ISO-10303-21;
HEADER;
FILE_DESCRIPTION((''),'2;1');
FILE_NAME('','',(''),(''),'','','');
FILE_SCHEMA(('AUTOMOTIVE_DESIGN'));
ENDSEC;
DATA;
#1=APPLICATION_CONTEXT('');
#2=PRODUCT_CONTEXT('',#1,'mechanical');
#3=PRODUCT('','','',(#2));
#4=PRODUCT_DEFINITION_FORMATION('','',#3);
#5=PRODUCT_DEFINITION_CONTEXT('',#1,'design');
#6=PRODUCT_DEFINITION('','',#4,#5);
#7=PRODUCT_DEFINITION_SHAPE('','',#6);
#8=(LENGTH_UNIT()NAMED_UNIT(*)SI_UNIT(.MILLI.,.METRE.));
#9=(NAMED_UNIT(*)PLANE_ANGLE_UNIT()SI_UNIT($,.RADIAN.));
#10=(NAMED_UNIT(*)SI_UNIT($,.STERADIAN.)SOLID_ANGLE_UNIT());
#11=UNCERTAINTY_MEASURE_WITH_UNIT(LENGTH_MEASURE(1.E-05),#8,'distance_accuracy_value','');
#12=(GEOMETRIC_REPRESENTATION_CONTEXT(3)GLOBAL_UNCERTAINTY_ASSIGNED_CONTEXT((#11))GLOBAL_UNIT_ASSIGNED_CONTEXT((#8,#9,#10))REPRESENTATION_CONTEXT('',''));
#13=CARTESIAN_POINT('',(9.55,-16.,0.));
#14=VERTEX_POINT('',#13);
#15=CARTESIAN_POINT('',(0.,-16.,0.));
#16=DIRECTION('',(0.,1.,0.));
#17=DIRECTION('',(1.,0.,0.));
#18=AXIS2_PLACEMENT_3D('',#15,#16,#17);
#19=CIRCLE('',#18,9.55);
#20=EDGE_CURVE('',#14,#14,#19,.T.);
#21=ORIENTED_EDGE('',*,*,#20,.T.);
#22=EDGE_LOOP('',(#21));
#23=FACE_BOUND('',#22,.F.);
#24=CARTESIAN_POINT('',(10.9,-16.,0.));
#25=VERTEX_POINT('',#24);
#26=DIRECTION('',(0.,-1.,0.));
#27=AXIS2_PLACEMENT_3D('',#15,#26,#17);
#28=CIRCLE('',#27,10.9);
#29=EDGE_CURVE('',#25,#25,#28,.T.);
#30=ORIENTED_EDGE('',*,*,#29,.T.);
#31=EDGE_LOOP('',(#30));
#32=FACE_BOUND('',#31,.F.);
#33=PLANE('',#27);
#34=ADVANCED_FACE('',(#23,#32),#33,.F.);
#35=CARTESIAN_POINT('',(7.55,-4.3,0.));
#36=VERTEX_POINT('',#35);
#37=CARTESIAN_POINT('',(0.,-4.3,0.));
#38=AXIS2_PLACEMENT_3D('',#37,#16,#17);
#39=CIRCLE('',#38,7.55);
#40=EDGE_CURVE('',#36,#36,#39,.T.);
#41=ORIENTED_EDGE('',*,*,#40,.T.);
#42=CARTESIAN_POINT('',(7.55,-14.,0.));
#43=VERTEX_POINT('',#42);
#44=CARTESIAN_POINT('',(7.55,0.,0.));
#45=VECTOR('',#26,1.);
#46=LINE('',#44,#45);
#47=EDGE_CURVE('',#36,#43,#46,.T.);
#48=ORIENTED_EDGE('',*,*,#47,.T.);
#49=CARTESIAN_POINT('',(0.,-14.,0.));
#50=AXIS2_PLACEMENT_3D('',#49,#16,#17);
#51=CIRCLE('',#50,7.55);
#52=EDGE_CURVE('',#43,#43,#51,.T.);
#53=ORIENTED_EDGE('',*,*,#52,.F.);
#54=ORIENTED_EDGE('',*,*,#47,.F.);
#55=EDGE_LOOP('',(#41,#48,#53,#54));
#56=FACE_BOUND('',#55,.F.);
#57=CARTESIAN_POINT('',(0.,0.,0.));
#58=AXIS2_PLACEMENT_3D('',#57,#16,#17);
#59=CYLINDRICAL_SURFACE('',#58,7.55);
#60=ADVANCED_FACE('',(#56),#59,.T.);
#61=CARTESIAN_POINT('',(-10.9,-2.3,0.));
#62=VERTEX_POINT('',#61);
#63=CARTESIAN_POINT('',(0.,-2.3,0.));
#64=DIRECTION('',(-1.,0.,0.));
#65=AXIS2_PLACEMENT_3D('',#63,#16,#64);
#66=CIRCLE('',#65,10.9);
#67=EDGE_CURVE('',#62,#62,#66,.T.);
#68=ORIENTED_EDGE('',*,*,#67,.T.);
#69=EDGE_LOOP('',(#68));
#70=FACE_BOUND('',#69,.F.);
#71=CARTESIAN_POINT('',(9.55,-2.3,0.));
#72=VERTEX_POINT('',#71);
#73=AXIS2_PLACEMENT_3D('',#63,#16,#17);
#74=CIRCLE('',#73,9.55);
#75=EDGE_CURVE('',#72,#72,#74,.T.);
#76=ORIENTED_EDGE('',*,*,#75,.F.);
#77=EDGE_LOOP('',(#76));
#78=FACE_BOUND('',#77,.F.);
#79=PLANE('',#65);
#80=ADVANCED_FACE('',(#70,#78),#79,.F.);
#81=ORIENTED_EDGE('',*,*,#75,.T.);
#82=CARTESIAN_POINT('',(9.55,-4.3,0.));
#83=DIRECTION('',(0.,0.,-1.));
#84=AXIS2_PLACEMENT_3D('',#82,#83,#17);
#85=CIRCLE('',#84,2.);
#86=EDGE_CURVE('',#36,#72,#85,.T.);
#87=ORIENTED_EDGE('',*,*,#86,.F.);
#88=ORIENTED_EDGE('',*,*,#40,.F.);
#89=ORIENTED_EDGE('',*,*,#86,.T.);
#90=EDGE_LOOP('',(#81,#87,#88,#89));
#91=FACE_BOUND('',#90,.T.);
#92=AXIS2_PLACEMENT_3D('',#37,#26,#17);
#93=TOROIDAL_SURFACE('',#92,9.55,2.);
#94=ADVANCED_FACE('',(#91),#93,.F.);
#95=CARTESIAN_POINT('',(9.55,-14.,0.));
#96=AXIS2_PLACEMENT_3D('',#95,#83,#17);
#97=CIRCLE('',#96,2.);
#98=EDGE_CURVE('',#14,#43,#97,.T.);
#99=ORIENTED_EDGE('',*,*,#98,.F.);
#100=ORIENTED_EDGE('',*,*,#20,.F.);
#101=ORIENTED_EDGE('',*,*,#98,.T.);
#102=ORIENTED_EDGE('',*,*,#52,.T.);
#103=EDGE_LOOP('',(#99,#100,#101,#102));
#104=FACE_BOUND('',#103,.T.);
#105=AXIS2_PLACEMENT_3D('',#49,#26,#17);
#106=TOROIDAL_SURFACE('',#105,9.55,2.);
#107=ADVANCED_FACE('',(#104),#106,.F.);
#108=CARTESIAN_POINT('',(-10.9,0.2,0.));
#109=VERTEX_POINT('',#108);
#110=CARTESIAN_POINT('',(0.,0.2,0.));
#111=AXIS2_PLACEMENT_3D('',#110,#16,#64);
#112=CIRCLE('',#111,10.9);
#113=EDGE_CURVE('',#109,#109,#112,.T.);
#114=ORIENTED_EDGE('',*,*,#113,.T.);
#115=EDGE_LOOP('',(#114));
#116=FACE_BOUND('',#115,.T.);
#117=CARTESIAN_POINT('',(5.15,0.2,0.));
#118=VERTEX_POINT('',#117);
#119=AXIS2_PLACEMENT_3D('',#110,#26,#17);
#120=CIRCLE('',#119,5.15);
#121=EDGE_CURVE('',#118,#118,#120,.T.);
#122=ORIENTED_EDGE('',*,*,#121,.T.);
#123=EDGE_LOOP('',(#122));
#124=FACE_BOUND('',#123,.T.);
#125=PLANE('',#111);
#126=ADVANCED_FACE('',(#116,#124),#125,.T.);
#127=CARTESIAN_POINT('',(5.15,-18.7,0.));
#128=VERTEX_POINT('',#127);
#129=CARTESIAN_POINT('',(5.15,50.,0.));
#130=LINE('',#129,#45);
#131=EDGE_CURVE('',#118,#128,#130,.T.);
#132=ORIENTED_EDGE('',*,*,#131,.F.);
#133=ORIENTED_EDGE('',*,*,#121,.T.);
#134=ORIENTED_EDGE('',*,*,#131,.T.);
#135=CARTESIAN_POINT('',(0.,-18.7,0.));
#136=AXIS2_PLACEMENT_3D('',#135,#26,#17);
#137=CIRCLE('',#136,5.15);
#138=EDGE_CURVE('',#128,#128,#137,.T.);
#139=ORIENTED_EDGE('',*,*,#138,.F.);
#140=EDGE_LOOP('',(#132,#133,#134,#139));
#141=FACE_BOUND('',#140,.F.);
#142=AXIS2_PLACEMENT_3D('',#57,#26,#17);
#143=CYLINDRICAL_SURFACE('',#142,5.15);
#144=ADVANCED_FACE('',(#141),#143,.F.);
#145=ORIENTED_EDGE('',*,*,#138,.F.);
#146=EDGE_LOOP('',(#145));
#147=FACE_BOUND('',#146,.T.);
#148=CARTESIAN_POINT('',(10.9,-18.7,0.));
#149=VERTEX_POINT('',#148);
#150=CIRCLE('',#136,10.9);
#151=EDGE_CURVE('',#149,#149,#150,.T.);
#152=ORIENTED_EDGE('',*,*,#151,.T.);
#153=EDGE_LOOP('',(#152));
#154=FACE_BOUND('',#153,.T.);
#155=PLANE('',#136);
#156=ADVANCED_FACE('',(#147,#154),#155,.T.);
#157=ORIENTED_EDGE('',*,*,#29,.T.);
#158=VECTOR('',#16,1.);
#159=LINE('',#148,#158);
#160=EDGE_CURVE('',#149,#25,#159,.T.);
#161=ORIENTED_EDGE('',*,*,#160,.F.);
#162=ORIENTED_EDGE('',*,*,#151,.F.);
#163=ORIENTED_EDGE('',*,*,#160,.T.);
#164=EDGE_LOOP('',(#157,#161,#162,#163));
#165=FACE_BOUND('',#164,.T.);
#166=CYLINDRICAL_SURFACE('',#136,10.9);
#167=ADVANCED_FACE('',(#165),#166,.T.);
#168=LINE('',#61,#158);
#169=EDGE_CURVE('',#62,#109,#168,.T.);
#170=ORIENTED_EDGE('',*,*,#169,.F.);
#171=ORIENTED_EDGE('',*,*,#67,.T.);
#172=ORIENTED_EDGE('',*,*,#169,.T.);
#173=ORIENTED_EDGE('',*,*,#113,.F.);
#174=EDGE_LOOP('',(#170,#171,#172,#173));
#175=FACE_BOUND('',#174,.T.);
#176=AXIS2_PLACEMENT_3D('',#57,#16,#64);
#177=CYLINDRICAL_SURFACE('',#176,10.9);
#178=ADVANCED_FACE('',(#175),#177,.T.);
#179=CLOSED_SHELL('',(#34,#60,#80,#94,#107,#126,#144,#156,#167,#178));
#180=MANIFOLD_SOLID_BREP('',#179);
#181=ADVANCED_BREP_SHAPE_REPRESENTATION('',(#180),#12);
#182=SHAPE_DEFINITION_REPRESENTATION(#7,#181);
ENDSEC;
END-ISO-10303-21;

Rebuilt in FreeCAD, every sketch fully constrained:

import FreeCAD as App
import Part
import Sketcher

V = App.Vector
Q = App.Units.Quantity


def edges_at(feature, points):
    """Names of the edges that pass closest to the given points."""
    edges = feature.Shape.Edges
    near = lambda p: min(range(len(edges)), key=lambda i: edges[i].distToShape(Part.Vertex(*p))[0])
    return sorted({f"Edge{near(p) + 1}" for p in points})

doc = App.newDocument("Part")
params = doc.addObject("Spreadsheet::Sheet", "Params")
for row, (alias, value) in enumerate([
    ("sketch1_diameter", "15.1 mm"),
    ("pad1_length", "18.7 mm"),
    ("sketch2_diameter", "21.8 mm"),
    ("pad2_length", "2.3 mm"),
    ("sketch3_diameter", "21.8 mm"),
    ("pad3_length", "0.2 mm"),
    ("sketch4_diameter", "21.8 mm"),
    ("pad4_length", "2.7 mm"),
    ("sketch5_diameter", "10.3 mm"),
    ("pocket1_length", "100 mm"),
    ("fillet_radius", "2 mm"),
], start=1):
    params.set(f"A{row}", alias)
    params.set(f"B{row}", "=" + value)
    params.setAlias(f"B{row}", alias)

body = doc.addObject("PartDesign::Body", "Body")

# Sketch on XZ plane
sketch1 = body.newObject("Sketcher::SketchObject", "Sketch")
sketch1.AttachmentSupport = (doc.getObject("XZ_Plane"), [""])
sketch1.MapMode = "FlatFace"
sketch1.addGeometry(Part.Circle(V(0, 0, 0), V(0, 0, 1), 8), False)
sketch1.addConstraint(Sketcher.Constraint("Coincident", 0, 3, -1, 1))
sketch1.addConstraint(Sketcher.Constraint("Diameter", 0, Q("15.1 mm")))
sketch1.setExpression("Constraints[1]", "Params.sketch1_diameter")
pad1 = body.newObject("PartDesign::Pad", "Pad")
pad1.Profile = sketch1
pad1.setExpression("Length", "Params.pad1_length")

# Sketch on XZ plane
sketch2 = body.newObject("Sketcher::SketchObject", "Sketch001")
sketch2.AttachmentSupport = (doc.getObject("XZ_Plane"), [""])
sketch2.MapMode = "FlatFace"
sketch2.addGeometry(Part.Circle(V(0, 0, 0), V(0, 0, 1), 11), False)
sketch2.addConstraint(Sketcher.Constraint("Coincident", 0, 3, -1, 1))
sketch2.addConstraint(Sketcher.Constraint("Diameter", 0, Q("21.8 mm")))
sketch2.setExpression("Constraints[1]", "Params.sketch2_diameter")
pad2 = body.newObject("PartDesign::Pad", "Pad001")
pad2.Profile = sketch2
pad2.setExpression("Length", "Params.pad2_length")

# Sketch on XZ plane
sketch3 = body.newObject("Sketcher::SketchObject", "Sketch002")
sketch3.AttachmentSupport = (doc.getObject("XZ_Plane"), [""])
sketch3.MapMode = "FlatFace"
sketch3.addGeometry(Part.Circle(V(0, 0, 0), V(0, 0, 1), 11), False)
sketch3.addConstraint(Sketcher.Constraint("Coincident", 0, 3, -1, 1))
sketch3.addConstraint(Sketcher.Constraint("Diameter", 0, Q("21.8 mm")))
sketch3.setExpression("Constraints[1]", "Params.sketch3_diameter")
pad3 = body.newObject("PartDesign::Pad", "Pad002")
pad3.Profile = sketch3
pad3.setExpression("Length", "Params.pad3_length")
pad3.Reversed = True

# Sketch on XZ plane
sketch4 = body.newObject("Sketcher::SketchObject", "Sketch003")
sketch4.AttachmentSupport = (doc.getObject("XZ_Plane"), [""])
sketch4.MapMode = "FlatFace"
sketch4.AttachmentOffset = App.Placement(V(0, 0, 18.7), App.Rotation())
sketch4.addGeometry(Part.Circle(V(0, 0, 0), V(0, 0, 1), 11), False)
sketch4.addConstraint(Sketcher.Constraint("Coincident", 0, 3, -1, 1))
sketch4.addConstraint(Sketcher.Constraint("Diameter", 0, Q("21.8 mm")))
sketch4.setExpression("Constraints[1]", "Params.sketch4_diameter")
pad4 = body.newObject("PartDesign::Pad", "Pad003")
pad4.Profile = sketch4
pad4.setExpression("Length", "Params.pad4_length")
pad4.Reversed = True

# Sketch on XZ plane
sketch5 = body.newObject("Sketcher::SketchObject", "Sketch004")
sketch5.AttachmentSupport = (doc.getObject("XZ_Plane"), [""])
sketch5.MapMode = "FlatFace"
sketch5.addGeometry(Part.Circle(V(0, 0, 0), V(0, 0, 1), 5), False)
sketch5.addConstraint(Sketcher.Constraint("Coincident", 0, 3, -1, 1))
sketch5.addConstraint(Sketcher.Constraint("Diameter", 0, Q("10.3 mm")))
sketch5.setExpression("Constraints[1]", "Params.sketch5_diameter")
pocket1 = body.newObject("PartDesign::Pocket", "Pocket")
pocket1.Profile = sketch5
pocket1.setExpression("Length", "Params.pocket1_length")
pocket1.Midplane = True
doc.recompute()

fillet = body.newObject("PartDesign::Fillet", "Fillet")
fillet.Base = (pocket1, edges_at(pocket1, [(-7.55, -2.3, 0), (-7.55, -16, 0)]))
fillet.setExpression("Radius", "Params.fillet_radius")

doc.recompute()
